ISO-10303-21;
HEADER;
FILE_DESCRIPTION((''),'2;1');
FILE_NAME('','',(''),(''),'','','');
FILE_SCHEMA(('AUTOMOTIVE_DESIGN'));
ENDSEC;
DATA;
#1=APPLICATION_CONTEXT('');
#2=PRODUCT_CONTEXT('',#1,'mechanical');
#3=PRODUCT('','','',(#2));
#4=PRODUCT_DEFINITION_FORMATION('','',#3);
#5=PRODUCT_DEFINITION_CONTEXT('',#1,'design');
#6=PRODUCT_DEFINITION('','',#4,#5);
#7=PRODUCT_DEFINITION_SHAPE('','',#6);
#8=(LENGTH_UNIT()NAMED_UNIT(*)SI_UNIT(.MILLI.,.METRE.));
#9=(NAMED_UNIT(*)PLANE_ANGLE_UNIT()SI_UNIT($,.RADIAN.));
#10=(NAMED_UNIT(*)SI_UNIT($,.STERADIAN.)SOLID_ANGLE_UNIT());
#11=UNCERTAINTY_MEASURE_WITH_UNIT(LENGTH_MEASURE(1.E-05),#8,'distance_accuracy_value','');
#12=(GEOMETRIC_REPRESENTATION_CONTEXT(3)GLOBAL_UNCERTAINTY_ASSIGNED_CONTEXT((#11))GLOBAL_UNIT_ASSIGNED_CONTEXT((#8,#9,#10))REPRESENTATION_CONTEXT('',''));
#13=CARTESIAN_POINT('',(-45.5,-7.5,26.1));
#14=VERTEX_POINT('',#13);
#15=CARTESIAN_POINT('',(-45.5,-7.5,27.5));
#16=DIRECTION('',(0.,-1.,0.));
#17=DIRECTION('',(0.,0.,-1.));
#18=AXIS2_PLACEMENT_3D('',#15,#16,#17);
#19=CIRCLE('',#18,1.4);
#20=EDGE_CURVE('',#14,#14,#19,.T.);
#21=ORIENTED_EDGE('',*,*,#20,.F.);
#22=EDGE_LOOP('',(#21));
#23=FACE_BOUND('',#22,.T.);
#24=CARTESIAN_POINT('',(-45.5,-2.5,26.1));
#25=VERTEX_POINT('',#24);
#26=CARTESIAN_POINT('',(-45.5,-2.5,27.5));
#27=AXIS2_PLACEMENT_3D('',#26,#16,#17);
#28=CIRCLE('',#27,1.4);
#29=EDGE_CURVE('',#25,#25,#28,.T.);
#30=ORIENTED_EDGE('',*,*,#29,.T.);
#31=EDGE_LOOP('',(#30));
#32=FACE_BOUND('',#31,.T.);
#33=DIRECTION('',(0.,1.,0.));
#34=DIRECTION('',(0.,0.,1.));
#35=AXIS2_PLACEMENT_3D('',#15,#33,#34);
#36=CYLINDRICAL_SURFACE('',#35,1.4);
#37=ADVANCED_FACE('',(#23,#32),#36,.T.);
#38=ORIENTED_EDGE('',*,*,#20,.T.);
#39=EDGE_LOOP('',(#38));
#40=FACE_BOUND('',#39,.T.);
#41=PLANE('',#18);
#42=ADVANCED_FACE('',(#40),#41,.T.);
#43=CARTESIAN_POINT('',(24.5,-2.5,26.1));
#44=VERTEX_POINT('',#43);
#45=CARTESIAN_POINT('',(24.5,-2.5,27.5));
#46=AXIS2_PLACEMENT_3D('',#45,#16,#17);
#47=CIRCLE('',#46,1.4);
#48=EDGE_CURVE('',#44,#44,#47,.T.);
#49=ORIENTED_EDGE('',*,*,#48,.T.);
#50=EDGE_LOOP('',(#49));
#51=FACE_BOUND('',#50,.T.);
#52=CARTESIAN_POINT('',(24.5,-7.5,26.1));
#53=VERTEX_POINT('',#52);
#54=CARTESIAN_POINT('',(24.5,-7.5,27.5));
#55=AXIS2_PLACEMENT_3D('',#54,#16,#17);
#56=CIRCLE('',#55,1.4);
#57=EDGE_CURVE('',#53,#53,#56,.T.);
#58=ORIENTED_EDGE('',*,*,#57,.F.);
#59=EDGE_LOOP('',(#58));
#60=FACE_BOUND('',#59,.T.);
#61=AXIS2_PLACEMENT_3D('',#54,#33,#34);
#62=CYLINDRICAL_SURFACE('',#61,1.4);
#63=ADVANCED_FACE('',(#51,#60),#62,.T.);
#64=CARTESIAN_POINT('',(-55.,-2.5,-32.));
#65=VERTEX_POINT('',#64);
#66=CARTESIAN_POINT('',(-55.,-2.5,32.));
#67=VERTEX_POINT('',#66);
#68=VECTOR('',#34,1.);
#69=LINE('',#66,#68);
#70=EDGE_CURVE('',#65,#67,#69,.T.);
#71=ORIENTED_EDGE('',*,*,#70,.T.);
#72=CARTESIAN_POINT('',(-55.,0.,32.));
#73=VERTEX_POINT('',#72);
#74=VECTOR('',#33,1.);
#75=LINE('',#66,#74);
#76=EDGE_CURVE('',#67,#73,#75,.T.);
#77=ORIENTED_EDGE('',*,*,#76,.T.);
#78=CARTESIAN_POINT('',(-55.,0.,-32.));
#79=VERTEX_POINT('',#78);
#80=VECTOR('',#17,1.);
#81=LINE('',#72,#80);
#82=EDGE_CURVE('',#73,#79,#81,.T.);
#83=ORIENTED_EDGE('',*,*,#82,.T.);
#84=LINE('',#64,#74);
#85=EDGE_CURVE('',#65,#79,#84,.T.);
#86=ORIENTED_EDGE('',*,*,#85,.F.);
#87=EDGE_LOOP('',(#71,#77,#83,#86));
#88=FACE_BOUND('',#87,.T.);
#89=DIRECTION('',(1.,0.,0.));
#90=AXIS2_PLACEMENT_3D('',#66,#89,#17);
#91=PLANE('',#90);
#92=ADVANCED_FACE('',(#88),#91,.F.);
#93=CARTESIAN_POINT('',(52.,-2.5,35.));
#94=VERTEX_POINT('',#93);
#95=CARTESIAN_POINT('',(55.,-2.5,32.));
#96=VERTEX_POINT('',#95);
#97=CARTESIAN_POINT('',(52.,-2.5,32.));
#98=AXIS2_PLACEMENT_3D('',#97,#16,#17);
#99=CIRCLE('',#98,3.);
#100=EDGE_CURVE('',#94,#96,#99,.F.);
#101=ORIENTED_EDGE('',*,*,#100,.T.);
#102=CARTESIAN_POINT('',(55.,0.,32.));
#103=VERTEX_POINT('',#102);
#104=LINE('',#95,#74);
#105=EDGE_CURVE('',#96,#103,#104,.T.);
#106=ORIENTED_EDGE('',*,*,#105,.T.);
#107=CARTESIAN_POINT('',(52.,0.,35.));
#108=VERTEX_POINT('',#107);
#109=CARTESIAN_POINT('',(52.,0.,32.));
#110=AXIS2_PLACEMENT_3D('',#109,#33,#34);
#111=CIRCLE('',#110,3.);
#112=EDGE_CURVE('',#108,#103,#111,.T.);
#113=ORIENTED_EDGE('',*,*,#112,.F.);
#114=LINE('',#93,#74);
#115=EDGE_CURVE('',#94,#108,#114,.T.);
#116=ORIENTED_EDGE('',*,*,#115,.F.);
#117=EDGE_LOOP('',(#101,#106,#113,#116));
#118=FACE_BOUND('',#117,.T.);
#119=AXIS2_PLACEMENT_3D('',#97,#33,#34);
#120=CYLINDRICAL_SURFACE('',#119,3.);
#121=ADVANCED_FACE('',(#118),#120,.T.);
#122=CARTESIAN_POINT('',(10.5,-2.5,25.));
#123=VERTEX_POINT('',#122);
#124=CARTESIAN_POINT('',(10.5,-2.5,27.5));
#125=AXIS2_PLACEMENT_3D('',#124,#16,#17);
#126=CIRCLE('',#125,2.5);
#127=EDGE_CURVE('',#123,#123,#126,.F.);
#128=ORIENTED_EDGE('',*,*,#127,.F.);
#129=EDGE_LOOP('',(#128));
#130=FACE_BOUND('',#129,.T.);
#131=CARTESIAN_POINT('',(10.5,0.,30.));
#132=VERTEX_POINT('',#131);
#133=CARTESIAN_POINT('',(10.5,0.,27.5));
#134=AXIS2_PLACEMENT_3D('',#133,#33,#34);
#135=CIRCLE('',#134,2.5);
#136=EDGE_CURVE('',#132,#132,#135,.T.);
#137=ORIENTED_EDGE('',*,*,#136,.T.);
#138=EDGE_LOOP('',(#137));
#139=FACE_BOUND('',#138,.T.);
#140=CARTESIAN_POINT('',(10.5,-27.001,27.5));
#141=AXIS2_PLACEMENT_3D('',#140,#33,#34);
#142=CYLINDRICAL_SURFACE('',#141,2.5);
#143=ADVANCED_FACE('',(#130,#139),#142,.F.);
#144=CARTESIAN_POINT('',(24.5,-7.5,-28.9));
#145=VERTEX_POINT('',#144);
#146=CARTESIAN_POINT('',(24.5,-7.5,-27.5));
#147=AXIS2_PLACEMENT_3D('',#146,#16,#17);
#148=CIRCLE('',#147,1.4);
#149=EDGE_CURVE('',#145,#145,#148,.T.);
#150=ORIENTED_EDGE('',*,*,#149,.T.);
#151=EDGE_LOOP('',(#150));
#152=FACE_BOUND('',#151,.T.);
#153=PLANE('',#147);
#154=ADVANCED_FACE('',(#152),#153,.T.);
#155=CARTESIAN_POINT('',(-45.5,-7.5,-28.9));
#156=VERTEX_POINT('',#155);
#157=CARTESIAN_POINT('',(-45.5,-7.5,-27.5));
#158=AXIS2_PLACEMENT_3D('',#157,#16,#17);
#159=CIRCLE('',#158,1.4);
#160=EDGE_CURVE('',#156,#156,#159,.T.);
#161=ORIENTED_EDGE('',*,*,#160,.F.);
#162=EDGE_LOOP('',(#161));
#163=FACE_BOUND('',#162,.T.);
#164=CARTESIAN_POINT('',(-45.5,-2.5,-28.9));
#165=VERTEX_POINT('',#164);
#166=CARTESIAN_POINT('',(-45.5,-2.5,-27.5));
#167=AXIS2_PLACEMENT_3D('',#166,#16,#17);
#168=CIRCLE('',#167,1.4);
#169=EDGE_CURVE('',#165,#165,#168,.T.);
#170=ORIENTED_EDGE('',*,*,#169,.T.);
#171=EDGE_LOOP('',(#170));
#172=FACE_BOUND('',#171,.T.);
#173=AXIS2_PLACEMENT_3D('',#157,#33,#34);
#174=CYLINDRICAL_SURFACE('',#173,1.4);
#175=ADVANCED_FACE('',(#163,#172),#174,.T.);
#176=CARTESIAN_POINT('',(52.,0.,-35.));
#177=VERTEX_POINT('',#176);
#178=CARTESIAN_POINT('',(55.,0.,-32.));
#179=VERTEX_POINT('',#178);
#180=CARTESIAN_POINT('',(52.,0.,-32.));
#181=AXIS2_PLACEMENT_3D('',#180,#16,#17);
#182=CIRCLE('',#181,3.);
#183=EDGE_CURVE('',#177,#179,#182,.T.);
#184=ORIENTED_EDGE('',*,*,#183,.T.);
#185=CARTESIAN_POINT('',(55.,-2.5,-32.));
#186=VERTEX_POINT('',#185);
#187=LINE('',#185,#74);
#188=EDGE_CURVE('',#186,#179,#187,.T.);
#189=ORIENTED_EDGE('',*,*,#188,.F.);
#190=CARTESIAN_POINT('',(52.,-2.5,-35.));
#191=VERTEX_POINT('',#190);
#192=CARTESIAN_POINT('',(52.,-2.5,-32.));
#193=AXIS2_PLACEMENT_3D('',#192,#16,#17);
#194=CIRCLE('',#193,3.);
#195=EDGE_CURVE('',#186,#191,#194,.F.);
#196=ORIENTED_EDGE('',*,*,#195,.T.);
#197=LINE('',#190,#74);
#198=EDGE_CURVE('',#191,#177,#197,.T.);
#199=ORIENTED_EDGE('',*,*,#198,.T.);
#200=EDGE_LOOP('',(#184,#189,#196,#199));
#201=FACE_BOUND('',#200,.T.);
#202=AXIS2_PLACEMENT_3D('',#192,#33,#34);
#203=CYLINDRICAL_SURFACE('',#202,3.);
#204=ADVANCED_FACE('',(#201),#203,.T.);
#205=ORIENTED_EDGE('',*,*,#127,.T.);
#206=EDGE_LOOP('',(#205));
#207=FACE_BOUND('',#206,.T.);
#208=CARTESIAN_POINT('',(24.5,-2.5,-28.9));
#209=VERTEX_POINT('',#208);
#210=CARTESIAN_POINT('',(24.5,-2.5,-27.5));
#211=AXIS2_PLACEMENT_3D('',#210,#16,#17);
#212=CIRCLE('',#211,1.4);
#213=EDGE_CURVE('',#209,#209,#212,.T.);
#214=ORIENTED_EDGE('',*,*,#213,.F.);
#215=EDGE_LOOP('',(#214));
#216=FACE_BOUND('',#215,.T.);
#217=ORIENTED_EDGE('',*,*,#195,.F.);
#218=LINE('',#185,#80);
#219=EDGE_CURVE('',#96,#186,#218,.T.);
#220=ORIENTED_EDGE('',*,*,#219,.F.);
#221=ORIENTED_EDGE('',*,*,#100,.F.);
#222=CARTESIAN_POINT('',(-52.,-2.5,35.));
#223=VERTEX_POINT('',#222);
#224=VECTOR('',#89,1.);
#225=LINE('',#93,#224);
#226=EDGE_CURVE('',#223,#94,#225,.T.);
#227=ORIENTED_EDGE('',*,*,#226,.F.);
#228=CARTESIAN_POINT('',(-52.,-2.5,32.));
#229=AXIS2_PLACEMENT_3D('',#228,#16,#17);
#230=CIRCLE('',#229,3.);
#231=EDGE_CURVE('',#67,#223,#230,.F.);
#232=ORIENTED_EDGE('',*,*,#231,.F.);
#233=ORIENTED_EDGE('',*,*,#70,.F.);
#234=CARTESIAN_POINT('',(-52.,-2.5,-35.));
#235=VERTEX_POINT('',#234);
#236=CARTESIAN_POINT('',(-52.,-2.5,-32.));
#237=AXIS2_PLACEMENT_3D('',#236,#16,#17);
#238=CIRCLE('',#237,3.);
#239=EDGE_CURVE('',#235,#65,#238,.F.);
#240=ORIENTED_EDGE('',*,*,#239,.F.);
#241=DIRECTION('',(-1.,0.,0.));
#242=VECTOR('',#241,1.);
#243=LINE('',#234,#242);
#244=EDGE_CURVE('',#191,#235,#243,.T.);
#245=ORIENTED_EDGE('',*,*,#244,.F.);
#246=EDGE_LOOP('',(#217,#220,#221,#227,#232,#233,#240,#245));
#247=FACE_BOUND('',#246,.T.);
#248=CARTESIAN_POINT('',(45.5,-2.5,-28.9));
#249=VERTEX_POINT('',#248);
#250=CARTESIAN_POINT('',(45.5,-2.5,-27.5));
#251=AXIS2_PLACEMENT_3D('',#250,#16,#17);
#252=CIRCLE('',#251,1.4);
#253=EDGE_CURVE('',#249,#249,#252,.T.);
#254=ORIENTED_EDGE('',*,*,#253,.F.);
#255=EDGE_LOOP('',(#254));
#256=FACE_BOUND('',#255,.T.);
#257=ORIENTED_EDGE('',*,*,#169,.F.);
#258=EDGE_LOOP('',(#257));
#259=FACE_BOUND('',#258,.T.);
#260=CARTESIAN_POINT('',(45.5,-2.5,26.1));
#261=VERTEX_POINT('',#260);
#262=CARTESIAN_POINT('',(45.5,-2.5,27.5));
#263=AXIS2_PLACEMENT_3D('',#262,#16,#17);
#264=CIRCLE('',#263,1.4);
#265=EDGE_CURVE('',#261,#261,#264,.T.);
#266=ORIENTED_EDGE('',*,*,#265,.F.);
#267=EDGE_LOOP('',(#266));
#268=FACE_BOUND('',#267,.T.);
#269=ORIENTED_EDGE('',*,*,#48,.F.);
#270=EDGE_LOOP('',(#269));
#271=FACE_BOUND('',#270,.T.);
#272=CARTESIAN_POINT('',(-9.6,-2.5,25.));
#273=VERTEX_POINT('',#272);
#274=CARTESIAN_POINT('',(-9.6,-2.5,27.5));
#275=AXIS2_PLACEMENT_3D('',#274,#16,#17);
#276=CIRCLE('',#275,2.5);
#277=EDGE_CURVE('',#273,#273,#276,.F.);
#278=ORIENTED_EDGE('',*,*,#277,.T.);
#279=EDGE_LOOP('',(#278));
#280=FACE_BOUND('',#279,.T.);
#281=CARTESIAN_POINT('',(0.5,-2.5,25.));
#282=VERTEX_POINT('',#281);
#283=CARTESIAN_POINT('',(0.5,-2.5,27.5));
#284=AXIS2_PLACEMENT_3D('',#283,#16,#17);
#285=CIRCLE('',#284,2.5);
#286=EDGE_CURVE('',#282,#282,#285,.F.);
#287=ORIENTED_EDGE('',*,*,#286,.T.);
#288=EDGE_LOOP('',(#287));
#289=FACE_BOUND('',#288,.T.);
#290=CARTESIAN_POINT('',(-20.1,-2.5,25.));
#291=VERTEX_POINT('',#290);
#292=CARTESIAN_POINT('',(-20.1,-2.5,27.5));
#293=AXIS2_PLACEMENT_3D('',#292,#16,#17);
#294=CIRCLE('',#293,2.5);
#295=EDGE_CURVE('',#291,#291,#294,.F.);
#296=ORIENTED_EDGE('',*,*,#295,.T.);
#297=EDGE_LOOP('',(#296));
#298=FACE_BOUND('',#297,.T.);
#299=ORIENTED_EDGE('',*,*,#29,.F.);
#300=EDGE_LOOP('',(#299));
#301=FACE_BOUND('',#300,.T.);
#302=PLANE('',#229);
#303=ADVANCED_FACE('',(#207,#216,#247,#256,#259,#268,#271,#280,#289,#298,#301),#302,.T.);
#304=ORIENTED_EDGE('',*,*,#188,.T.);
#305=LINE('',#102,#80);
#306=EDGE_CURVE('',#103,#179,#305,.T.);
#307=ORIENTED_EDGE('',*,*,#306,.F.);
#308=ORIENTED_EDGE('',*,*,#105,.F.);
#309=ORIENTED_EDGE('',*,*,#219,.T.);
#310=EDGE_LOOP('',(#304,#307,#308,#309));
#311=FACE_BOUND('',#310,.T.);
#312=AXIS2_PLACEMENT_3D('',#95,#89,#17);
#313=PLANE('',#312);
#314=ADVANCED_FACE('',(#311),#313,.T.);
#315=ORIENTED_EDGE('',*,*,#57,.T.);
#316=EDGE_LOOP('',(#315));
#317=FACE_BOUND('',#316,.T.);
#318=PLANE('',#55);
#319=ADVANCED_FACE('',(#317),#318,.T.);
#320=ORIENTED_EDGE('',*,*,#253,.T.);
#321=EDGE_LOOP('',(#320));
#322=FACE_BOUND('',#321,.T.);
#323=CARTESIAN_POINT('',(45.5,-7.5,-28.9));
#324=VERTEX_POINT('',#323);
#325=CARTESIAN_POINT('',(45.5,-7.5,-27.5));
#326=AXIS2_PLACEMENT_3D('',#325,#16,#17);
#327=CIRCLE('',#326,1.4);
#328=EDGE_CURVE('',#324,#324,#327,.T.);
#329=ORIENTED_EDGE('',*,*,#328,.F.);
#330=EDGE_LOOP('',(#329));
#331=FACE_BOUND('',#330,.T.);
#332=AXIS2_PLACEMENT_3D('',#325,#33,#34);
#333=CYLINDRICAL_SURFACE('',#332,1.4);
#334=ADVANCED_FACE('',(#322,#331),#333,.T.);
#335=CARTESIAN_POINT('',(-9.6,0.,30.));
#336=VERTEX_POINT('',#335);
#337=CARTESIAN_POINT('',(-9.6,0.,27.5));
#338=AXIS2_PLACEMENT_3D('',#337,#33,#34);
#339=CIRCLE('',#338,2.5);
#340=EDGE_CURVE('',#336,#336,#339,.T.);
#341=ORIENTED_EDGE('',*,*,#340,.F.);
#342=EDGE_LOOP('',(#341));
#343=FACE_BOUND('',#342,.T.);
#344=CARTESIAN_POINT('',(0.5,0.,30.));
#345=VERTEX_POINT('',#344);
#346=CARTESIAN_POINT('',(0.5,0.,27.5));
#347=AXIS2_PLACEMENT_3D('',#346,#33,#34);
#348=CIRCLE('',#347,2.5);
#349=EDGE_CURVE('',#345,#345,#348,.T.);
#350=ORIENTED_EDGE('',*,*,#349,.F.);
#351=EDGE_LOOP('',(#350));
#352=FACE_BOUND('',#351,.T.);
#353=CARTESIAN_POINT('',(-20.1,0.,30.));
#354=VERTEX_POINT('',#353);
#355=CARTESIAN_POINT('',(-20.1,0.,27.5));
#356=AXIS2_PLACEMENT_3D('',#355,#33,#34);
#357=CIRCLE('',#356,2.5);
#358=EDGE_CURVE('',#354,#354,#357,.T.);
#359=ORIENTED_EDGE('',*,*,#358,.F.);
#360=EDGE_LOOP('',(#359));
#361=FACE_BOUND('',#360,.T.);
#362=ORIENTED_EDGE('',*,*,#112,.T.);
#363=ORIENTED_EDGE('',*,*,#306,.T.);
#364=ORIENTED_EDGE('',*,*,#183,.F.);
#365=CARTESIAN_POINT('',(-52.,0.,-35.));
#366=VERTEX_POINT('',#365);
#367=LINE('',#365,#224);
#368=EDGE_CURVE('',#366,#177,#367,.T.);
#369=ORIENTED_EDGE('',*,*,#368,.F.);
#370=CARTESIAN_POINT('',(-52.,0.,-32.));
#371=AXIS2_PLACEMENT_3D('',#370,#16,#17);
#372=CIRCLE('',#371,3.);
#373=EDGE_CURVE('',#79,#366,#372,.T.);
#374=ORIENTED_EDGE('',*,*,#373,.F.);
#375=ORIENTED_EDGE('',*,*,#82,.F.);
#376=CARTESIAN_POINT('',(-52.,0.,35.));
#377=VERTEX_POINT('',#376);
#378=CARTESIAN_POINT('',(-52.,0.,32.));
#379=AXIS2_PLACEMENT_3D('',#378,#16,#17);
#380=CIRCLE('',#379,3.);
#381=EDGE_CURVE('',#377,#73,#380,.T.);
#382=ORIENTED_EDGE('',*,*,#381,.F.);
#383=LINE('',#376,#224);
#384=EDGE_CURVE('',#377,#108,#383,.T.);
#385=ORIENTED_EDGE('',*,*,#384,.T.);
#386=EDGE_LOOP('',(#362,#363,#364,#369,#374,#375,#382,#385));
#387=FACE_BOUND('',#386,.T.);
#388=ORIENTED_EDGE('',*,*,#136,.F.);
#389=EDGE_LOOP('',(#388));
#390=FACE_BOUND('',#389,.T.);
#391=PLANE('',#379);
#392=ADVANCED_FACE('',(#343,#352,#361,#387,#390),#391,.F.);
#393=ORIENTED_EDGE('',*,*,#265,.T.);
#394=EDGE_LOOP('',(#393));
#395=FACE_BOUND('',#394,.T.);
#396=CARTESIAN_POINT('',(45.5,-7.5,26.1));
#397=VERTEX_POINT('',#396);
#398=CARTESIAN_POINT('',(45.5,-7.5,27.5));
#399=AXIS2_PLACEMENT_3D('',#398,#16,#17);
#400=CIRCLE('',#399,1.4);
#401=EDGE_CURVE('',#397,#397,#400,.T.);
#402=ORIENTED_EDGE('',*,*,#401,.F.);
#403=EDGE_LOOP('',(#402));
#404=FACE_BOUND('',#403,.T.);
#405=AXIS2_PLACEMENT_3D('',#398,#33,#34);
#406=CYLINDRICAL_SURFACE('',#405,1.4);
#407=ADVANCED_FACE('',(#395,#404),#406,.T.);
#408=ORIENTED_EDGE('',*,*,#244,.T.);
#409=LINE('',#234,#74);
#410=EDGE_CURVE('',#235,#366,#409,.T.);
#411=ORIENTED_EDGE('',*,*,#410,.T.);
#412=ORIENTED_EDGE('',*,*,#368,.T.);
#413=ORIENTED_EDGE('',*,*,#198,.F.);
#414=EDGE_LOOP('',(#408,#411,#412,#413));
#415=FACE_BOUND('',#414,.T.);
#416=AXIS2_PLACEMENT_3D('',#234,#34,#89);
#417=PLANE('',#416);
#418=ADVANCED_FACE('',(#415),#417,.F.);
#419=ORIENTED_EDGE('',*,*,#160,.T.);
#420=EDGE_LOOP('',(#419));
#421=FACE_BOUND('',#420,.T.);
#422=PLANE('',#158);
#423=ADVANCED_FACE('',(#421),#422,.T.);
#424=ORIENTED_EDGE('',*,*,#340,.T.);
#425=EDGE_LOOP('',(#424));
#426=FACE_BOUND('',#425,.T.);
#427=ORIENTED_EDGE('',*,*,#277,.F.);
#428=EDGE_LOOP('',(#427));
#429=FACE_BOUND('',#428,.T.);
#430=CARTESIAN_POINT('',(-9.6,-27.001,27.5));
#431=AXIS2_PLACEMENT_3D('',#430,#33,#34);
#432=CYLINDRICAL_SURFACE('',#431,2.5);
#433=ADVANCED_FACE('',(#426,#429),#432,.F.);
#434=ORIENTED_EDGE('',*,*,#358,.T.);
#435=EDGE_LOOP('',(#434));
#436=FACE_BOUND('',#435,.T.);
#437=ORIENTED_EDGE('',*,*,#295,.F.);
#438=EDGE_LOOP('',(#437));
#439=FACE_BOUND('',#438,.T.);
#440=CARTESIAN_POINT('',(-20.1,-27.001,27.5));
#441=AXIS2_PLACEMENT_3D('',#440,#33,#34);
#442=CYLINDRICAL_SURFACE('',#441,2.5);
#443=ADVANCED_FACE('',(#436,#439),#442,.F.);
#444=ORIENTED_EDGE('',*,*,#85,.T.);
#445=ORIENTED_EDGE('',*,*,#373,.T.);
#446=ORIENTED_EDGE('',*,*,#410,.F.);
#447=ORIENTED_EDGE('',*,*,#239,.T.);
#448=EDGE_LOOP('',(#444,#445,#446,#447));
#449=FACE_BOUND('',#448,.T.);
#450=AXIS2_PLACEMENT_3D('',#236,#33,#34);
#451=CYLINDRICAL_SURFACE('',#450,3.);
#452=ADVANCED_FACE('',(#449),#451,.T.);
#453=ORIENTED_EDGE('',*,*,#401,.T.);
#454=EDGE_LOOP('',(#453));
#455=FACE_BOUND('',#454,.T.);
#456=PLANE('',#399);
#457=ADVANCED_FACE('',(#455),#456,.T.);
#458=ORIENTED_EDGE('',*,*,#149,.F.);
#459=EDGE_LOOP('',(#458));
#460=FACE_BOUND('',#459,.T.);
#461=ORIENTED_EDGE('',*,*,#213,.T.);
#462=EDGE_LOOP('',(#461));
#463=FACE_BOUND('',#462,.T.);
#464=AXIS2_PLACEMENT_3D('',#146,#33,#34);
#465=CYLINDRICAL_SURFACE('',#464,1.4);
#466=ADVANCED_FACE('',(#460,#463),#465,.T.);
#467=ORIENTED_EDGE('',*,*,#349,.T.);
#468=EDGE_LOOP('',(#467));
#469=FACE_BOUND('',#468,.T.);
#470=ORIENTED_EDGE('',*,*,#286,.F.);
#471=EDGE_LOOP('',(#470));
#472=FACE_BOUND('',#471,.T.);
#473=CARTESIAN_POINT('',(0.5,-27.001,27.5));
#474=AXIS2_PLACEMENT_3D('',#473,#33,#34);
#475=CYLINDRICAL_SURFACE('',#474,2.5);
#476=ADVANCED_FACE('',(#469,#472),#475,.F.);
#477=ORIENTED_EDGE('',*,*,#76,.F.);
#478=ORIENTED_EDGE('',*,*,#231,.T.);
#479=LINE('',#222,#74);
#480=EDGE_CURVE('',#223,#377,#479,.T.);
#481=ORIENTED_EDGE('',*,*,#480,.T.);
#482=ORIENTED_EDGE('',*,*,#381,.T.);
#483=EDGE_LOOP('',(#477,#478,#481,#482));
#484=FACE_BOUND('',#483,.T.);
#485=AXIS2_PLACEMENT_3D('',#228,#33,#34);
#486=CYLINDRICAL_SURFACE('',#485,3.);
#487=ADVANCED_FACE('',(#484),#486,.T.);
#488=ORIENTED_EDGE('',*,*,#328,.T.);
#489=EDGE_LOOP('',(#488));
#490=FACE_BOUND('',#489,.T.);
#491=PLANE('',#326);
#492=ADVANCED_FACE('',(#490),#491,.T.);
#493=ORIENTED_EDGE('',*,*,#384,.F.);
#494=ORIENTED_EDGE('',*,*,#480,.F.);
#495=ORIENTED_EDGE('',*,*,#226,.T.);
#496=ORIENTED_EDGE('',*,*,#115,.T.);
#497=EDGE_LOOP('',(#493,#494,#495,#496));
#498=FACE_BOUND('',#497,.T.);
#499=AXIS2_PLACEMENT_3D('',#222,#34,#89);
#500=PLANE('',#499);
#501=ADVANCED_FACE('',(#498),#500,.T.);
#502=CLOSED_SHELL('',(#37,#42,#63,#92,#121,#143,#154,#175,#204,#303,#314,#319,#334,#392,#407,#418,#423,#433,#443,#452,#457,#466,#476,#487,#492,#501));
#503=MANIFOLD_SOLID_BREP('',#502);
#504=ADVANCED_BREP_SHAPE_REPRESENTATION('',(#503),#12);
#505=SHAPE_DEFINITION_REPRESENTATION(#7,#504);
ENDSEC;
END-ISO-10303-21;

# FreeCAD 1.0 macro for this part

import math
import FreeCAD as App
import Part
import Sketcher
from FreeCAD import Vector
Q = App.Units.Quantity

doc = App.newDocument("Part")
params = doc.addObject("Spreadsheet::Sheet", "Params")
for row, (alias, value) in enumerate([
    ("sketch1_radius", "3 mm"),
    ("sketch1_width", "104 mm"),
    ("sketch1_height", "64 mm"),
    ("pad1_length", "2.5 mm"),
    ("sketch2_radius", "3 mm"),
    ("sketch2_radius2", "1.5 mm"),
    ("sketch2_width", "104 mm"),
    ("sketch2_height", "64 mm"),
    ("pad2_length", "24.5 mm"),
    ("sketch3_diameter", "5 mm"),
    ("sketch4_diameter", "5 mm"),
    ("sketch5_diameter", "5 mm"),
    ("sketch6_diameter", "5 mm"),
    ("sketch7_radius", "5 mm"),
    ("sketch7_diameter", "2.8 mm"),
    ("sketch7_radius2", "1.5 mm"),
    ("sketch7_width", "9 mm"),
    ("sketch7_width2", "11 mm"),
    ("pad3_length", "20 mm"),
    ("sketch8_diameter", "12.3 mm"),
    ("sketch9_radius", "5 mm"),
    ("sketch9_diameter", "2.8 mm"),
    ("sketch9_radius2", "1.5 mm"),
    ("sketch9_width", "9 mm"),
    ("sketch9_height", "6 mm"),
    ("pad4_length", "2 mm"),
    ("sketch10_radius", "3 mm"),
    ("sketch10_width", "104 mm"),
    ("sketch10_height", "64 mm"),
    ("pocket6_length", "24.5 mm"),
    ("sketch11_diameter", "2.8 mm"),
    ("pad5_length", "5 mm"),
], start=1):
    params.set(f"A{row}", alias)
    params.set(f"B{row}", "=" + value)
    params.setAlias(f"B{row}", alias)

body = doc.addObject("PartDesign::Body", "Body")

# Sketch on XZ plane
sketch1 = body.newObject("Sketcher::SketchObject", "Sketch")
sketch1.AttachmentSupport = (doc.getObject("XZ_Plane"), [""])
sketch1.MapMode = "FlatFace"
sketch1.addGeometry([
    Part.LineSegment(Vector(-52, 35, 0), Vector(52, 35, 0)),  # 0
    Part.ArcOfCircle(Part.Circle(Vector(52, 32, 0), Vector(0, 0, 1), 3), math.radians(0), math.radians(90)),  # 1
    Part.LineSegment(Vector(55, 32, 0), Vector(55, -32, 0)),  # 2
    Part.ArcOfCircle(Part.Circle(Vector(52, -32, 0), Vector(0, 0, 1), 3), math.radians(-90), math.radians(0)),  # 3
    Part.LineSegment(Vector(52, -35, 0), Vector(-52, -35, 0)),  # 4
    Part.ArcOfCircle(Part.Circle(Vector(-52, -32, 0), Vector(0, 0, 1), 3), math.radians(180), math.radians(270)),  # 5
    Part.LineSegment(Vector(-55, -32, 0), Vector(-55, 32, 0)),  # 6
    Part.ArcOfCircle(Part.Circle(Vector(-52, 32, 0), Vector(0, 0, 1), 3), math.radians(90), math.radians(180)),  # 7
], False)
sketch1.addConstraint([
    Sketcher.Constraint("Tangent", 0, 2, 1, 2),
    Sketcher.Constraint("Tangent", 1, 1, 2, 1),
    Sketcher.Constraint("Tangent", 2, 2, 3, 2),
    Sketcher.Constraint("Tangent", 3, 1, 4, 1),
    Sketcher.Constraint("Tangent", 4, 2, 5, 2),
    Sketcher.Constraint("Tangent", 5, 1, 6, 1),
    Sketcher.Constraint("Tangent", 6, 2, 7, 2),
    Sketcher.Constraint("Tangent", 7, 1, 0, 1),
    Sketcher.Constraint("Horizontal", 0),
    Sketcher.Constraint("Vertical", 2),
    Sketcher.Constraint("Horizontal", 4),
    Sketcher.Constraint("Vertical", 6),
    Sketcher.Constraint("Equal", 1, 3),
    Sketcher.Constraint("Equal", 3, 5),
    Sketcher.Constraint("Equal", 5, 7),
    Sketcher.Constraint("Symmetric", 1, 3, 5, 3, -1, 1),
    Sketcher.Constraint("Radius", 1, Q("3 mm")),
    Sketcher.Constraint("DistanceX", 0, 1, 0, 2, Q("104 mm")),
    Sketcher.Constraint("DistanceY", 2, 2, 2, 1, Q("64 mm")),
])
sketch1.setExpression("Constraints[16]", "Params.sketch1_radius")
sketch1.setExpression("Constraints[17]", "Params.sketch1_width")
sketch1.setExpression("Constraints[18]", "Params.sketch1_height")
pad1 = body.newObject("PartDesign::Pad", "Pad")
pad1.Profile = sketch1
pad1.setExpression("Length", "Params.pad1_length")

# Sketch on XZ plane
sketch2 = body.newObject("Sketcher::SketchObject", "Sketch001")
sketch2.AttachmentSupport = (doc.getObject("XZ_Plane"), [""])
sketch2.MapMode = "FlatFace"
sketch2.AttachmentOffset = App.Placement(Vector(0, 0, 2.5), App.Rotation())
sketch2.addGeometry([
    Part.LineSegment(Vector(-55, 32, 0), Vector(-55, -32, 0)),  # 0
    Part.ArcOfCircle(Part.Circle(Vector(-52, -32, 0), Vector(0, 0, 1), 3), math.radians(180), math.radians(270)),  # 1
    Part.LineSegment(Vector(-52, -35, 0), Vector(52, -35, 0)),  # 2
    Part.ArcOfCircle(Part.Circle(Vector(52, -32, 0), Vector(0, 0, 1), 3), math.radians(-90), math.radians(0)),  # 3
    Part.LineSegment(Vector(55, -32, 0), Vector(55, 32, 0)),  # 4
    Part.ArcOfCircle(Part.Circle(Vector(52, 32, 0), Vector(0, 0, 1), 3), math.radians(0), math.radians(90)),  # 5
    Part.LineSegment(Vector(52, 35, 0), Vector(-52, 35, 0)),  # 6
    Part.ArcOfCircle(Part.Circle(Vector(-52, 32, 0), Vector(0, 0, 1), 3), math.radians(90), math.radians(180)),  # 7
    Part.LineSegment(Vector(-53.5, -32, 0), Vector(-53.5, 32, 0)),  # 8
    Part.ArcOfCircle(Part.Circle(Vector(-52, 32, 0), Vector(0, 0, 1), 1.5), math.radians(90), math.radians(180)),  # 9
    Part.LineSegment(Vector(-52, 33.5, 0), Vector(52, 33.5, 0)),  # 10
    Part.ArcOfCircle(Part.Circle(Vector(52, 32, 0), Vector(0, 0, 1), 1.5), math.radians(0), math.radians(90)),  # 11
    Part.LineSegment(Vector(53.5, 32, 0), Vector(53.5, -32, 0)),  # 12
    Part.ArcOfCircle(Part.Circle(Vector(52, -32, 0), Vector(0, 0, 1), 1.5), math.radians(-90), math.radians(0)),  # 13
    Part.LineSegment(Vector(52, -33.5, 0), Vector(-52, -33.5, 0)),  # 14
    Part.ArcOfCircle(Part.Circle(Vector(-52, -32, 0), Vector(0, 0, 1), 1.5), math.radians(180), math.radians(270)),  # 15
], False)
sketch2.addConstraint([
    Sketcher.Constraint("Tangent", 0, 2, 1, 1),
    Sketcher.Constraint("Tangent", 1, 2, 2, 1),
    Sketcher.Constraint("Tangent", 2, 2, 3, 1),
    Sketcher.Constraint("Tangent", 3, 2, 4, 1),
    Sketcher.Constraint("Tangent", 4, 2, 5, 1),
    Sketcher.Constraint("Tangent", 5, 2, 6, 1),
    Sketcher.Constraint("Tangent", 6, 2, 7, 1),
    Sketcher.Constraint("Tangent", 7, 2, 0, 1),
    Sketcher.Constraint("Tangent", 8, 2, 9, 2),
    Sketcher.Constraint("Tangent", 9, 1, 10, 1),
    Sketcher.Constraint("Tangent", 10, 2, 11, 2),
    Sketcher.Constraint("Tangent", 11, 1, 12, 1),
    Sketcher.Constraint("Tangent", 12, 2, 13, 2),
    Sketcher.Constraint("Tangent", 13, 1, 14, 1),
    Sketcher.Constraint("Tangent", 14, 2, 15, 2),
    Sketcher.Constraint("Tangent", 15, 1, 8, 1),
    Sketcher.Constraint("Vertical", 0),
    Sketcher.Constraint("Horizontal", 2),
    Sketcher.Constraint("Vertical", 4),
    Sketcher.Constraint("Horizontal", 6),
    Sketcher.Constraint("Vertical", 8),
    Sketcher.Constraint("Horizontal", 10),
    Sketcher.Constraint("Vertical", 12),
    Sketcher.Constraint("Horizontal", 14),
    Sketcher.Constraint("Coincident", 9, 3, 7, 3),
    Sketcher.Constraint("Coincident", 11, 3, 5, 3),
    Sketcher.Constraint("Coincident", 13, 3, 3, 3),
    Sketcher.Constraint("Equal", 1, 3),
    Sketcher.Constraint("Equal", 3, 5),
    Sketcher.Constraint("Equal", 5, 7),
    Sketcher.Constraint("Equal", 13, 15),
    Sketcher.Constraint("Symmetric", 1, 3, 5, 3, -1, 1),
    Sketcher.Constraint("Radius", 1, Q("3 mm")),
    Sketcher.Constraint("Radius", 9, Q("1.5 mm")),
    Sketcher.Constraint("DistanceX", 2, 1, 2, 2, Q("104 mm")),
    Sketcher.Constraint("DistanceY", 0, 2, 0, 1, Q("64 mm")),
])
sketch2.setExpression("Constraints[32]", "Params.sketch2_radius")
sketch2.setExpression("Constraints[33]", "Params.sketch2_radius2")
sketch2.setExpression("Constraints[34]", "Params.sketch2_width")
sketch2.setExpression("Constraints[35]", "Params.sketch2_height")
pad2 = body.newObject("PartDesign::Pad", "Pad001")
pad2.Profile = sketch2
pad2.setExpression("Length", "Params.pad2_length")

# Sketch on XZ plane
sketch3 = body.newObject("Sketcher::SketchObject", "Sketch002")
sketch3.AttachmentSupport = (doc.getObject("XZ_Plane"), [""])
sketch3.MapMode = "FlatFace"
sketch3.addGeometry(Part.Circle(Vector(-20.1, 27.5, 0), Vector(0, 0, 1), 2.5), False)
sketch3.addConstraint([
    Sketcher.Constraint("Diameter", 0, Q("5 mm")),
    Sketcher.Constraint("DistanceX", 0, 3, -1, 1, Q("20.1 mm")),
    Sketcher.Constraint("DistanceY", -1, 1, 0, 3, Q("27.5 mm")),
])
sketch3.setExpression("Constraints[0]", "Params.sketch3_diameter")
pocket1 = body.newObject("PartDesign::Pocket", "Pocket")
pocket1.Profile = sketch3
pocket1.Type = "UpToFirst"
pocket1.Reversed = True

# Sketch on XZ plane
sketch4 = body.newObject("Sketcher::SketchObject", "Sketch003")
sketch4.AttachmentSupport = (doc.getObject("XZ_Plane"), [""])
sketch4.MapMode = "FlatFace"
sketch4.addGeometry(Part.Circle(Vector(-9.6, 27.5, 0), Vector(0, 0, 1), 2.5), False)
sketch4.addConstraint([
    Sketcher.Constraint("Diameter", 0, Q("5 mm")),
    Sketcher.Constraint("DistanceX", 0, 3, -1, 1, Q("9.6 mm")),
    Sketcher.Constraint("DistanceY", -1, 1, 0, 3, Q("27.5 mm")),
])
sketch4.setExpression("Constraints[0]", "Params.sketch4_diameter")
pocket2 = body.newObject("PartDesign::Pocket", "Pocket001")
pocket2.Profile = sketch4
pocket2.Type = "UpToFirst"
pocket2.Reversed = True

# Sketch on XZ plane
sketch5 = body.newObject("Sketcher::SketchObject", "Sketch004")
sketch5.AttachmentSupport = (doc.getObject("XZ_Plane"), [""])
sketch5.MapMode = "FlatFace"
sketch5.addGeometry(Part.Circle(Vector(0.5, 27.5, 0), Vector(0, 0, 1), 2.5), False)
sketch5.addConstraint([
    Sketcher.Constraint("Diameter", 0, Q("5 mm")),
    Sketcher.Constraint("DistanceX", -1, 1, 0, 3, Q("0.5 mm")),
    Sketcher.Constraint("DistanceY", -1, 1, 0, 3, Q("27.5 mm")),
])
sketch5.setExpression("Constraints[0]", "Params.sketch5_diameter")
pocket3 = body.newObject("PartDesign::Pocket", "Pocket002")
pocket3.Profile = sketch5
pocket3.Type = "UpToFirst"
pocket3.Reversed = True

# Sketch on XZ plane
sketch6 = body.newObject("Sketcher::SketchObject", "Sketch005")
sketch6.AttachmentSupport = (doc.getObject("XZ_Plane"), [""])
sketch6.MapMode = "FlatFace"
sketch6.addGeometry(Part.Circle(Vector(10.5, 27.5, 0), Vector(0, 0, 1), 2.5), False)
sketch6.addConstraint([
    Sketcher.Constraint("Diameter", 0, Q("5 mm")),
    Sketcher.Constraint("DistanceX", -1, 1, 0, 3, Q("10.5 mm")),
    Sketcher.Constraint("DistanceY", -1, 1, 0, 3, Q("27.5 mm")),
])
sketch6.setExpression("Constraints[0]", "Params.sketch6_diameter")
pocket4 = body.newObject("PartDesign::Pocket", "Pocket003")
pocket4.Profile = sketch6
pocket4.Type = "UpToFirst"
pocket4.Reversed = True

# Sketch on XZ plane
sketch7 = body.newObject("Sketcher::SketchObject", "Sketch006")
sketch7.AttachmentSupport = (doc.getObject("XZ_Plane"), [""])
sketch7.MapMode = "FlatFace"
sketch7.AttachmentOffset = App.Placement(Vector(0, 0, 2.5), App.Rotation())
sketch7.addGeometry([
    Part.LineSegment(Vector(-39.5, 27.5, 0), Vector(-39.5, 33.5, 0)),  # 0
    Part.LineSegment(Vector(-39.5, 33.5, 0), Vector(-52, 33.5, 0)),  # 1
    Part.ArcOfCircle(Part.Circle(Vector(-52, 32, 0), Vector(0, 0, 1), 1.5), math.radians(90), math.radians(180)),  # 2
    Part.LineSegment(Vector(-53.5, 32, 0), Vector(-53.5, 22.5, 0)),  # 3
    Part.LineSegment(Vector(-53.5, 22.5, 0), Vector(-44.5, 22.5, 0)),  # 4
    Part.ArcOfCircle(Part.Circle(Vector(-44.5, 27.5, 0), Vector(0, 0, 1), 5), math.radians(-90), math.radians(0)),  # 5
    Part.Circle(Vector(-45.5, 27.5, 0), Vector(0, 0, 1), 1.4),  # 6
    Part.LineSegment(Vector(29.5, 33.5, 0), Vector(18.5, 33.5, 0)),  # 7
    Part.LineSegment(Vector(18.5, 33.5, 0), Vector(18.5, 27.5, 0)),  # 8
    Part.ArcOfCircle(Part.Circle(Vector(23.5, 27.5, 0), Vector(0, 0, 1), 5), math.radians(180), math.radians(270)),  # 9
    Part.LineSegment(Vector(23.5, 22.5, 0), Vector(24.5, 22.5, 0)),  # 10
    Part.ArcOfCircle(Part.Circle(Vector(24.5, 27.5, 0), Vector(0, 0, 1), 5), math.radians(-90), math.radians(0)),  # 11
    Part.LineSegment(Vector(29.5, 27.5, 0), Vector(29.5, 33.5, 0)),  # 12
    Part.Circle(Vector(24.5, 27.5, 0), Vector(0, 0, 1), 1.4),  # 13
    Part.LineSegment(Vector(18.5, -27.5, 0), Vector(18.5, -33.5, 0)),  # 14
    Part.LineSegment(Vector(18.5, -33.5, 0), Vector(29.5, -33.5, 0)),  # 15
    Part.LineSegment(Vector(29.5, -33.5, 0), Vector(29.5, -27.5, 0)),  # 16
    Part.ArcOfCircle(Part.Circle(Vector(24.5, -27.5, 0), Vector(0, 0, 1), 5), math.radians(0), math.radians(90)),  # 17
    Part.LineSegment(Vector(24.5, -22.5, 0), Vector(23.5, -22.5, 0)),  # 18
    Part.ArcOfCircle(Part.Circle(Vector(23.5, -27.5, 0), Vector(0, 0, 1), 5), math.radians(90), math.radians(180)),  # 19
    Part.Circle(Vector(24.5, -27.5, 0), Vector(0, 0, 1), 1.4),  # 20
    Part.LineSegment(Vector(-44.5, -22.5, 0), Vector(-53.5, -22.5, 0)),  # 21
    Part.LineSegment(Vector(-53.5, -22.5, 0), Vector(-53.5, -32, 0)),  # 22
    Part.ArcOfCircle(Part.Circle(Vector(-52, -32, 0), Vector(0, 0, 1), 1.5), math.radians(180), math.radians(270)),  # 23
    Part.LineSegment(Vector(-52, -33.5, 0), Vector(-39.5, -33.5, 0)),  # 24
    Part.LineSegment(Vector(-39.5, -33.5, 0), Vector(-39.5, -27.5, 0)),  # 25
    Part.ArcOfCircle(Part.Circle(Vector(-44.5, -27.5, 0), Vector(0, 0, 1), 5), math.radians(0), math.radians(90)),  # 26
    Part.Circle(Vector(-45.5, -27.5, 0), Vector(0, 0, 1), 1.4),  # 27
    Part.LineSegment(Vector(52, 33.5, 0), Vector(39.5, 33.5, 0)),  # 28
    Part.LineSegment(Vector(39.5, 33.5, 0), Vector(39.5, 27.5, 0)),  # 29
    Part.ArcOfCircle(Part.Circle(Vector(44.5, 27.5, 0), Vector(0, 0, 1), 5), math.radians(180), math.radians(270)),  # 30
    Part.LineSegment(Vector(44.5, 22.5, 0), Vector(53.5, 22.5, 0)),  # 31
    Part.LineSegment(Vector(53.5, 22.5, 0), Vector(53.5, 32, 0)),  # 32
    Part.ArcOfCircle(Part.Circle(Vector(52, 32, 0), Vector(0, 0, 1), 1.5), math.radians(0), math.radians(90)),  # 33
    Part.Circle(Vector(45.5, 27.5, 0), Vector(0, 0, 1), 1.4),  # 34
    Part.LineSegment(Vector(53.5, -32, 0), Vector(53.5, -22.5, 0)),  # 35
    Part.LineSegment(Vector(53.5, -22.5, 0), Vector(44.5, -22.5, 0)),  # 36
    Part.ArcOfCircle(Part.Circle(Vector(44.5, -27.5, 0), Vector(0, 0, 1), 5), math.radians(90), math.radians(180)),  # 37
    Part.LineSegment(Vector(39.5, -27.5, 0), Vector(39.5, -33.5, 0)),  # 38
    Part.LineSegment(Vector(39.5, -33.5, 0), Vector(52, -33.5, 0)),  # 39
    Part.ArcOfCircle(Part.Circle(Vector(52, -32, 0), Vector(0, 0, 1), 1.5), math.radians(-90), math.radians(0)),  # 40
    Part.Circle(Vector(45.5, -27.5, 0), Vector(0, 0, 1), 1.4),  # 41
], False)
sketch7.addConstraint([
    Sketcher.Constraint("Coincident", 0, 2, 1, 1),
    Sketcher.Constraint("Tangent", 1, 2, 2, 1),
    Sketcher.Constraint("Tangent", 2, 2, 3, 1),
    Sketcher.Constraint("Coincident", 3, 2, 4, 1),
    Sketcher.Constraint("Tangent", 4, 2, 5, 1),
    Sketcher.Constraint("Tangent", 5, 2, 0, 1),
    Sketcher.Constraint("Coincident", 7, 2, 8, 1),
    Sketcher.Constraint("Tangent", 8, 2, 9, 1),
    Sketcher.Constraint("Tangent", 9, 2, 10, 1),
    Sketcher.Constraint("Tangent", 10, 2, 11, 1),
    Sketcher.Constraint("Tangent", 11, 2, 12, 1),
    Sketcher.Constraint("Coincident", 12, 2, 7, 1),
    Sketcher.Constraint("Coincident", 14, 2, 15, 1),
    Sketcher.Constraint("Coincident", 15, 2, 16, 1),
    Sketcher.Constraint("Tangent", 16, 2, 17, 1),
    Sketcher.Constraint("Tangent", 17, 2, 18, 1),
    Sketcher.Constraint("Tangent", 18, 2, 19, 1),
    Sketcher.Constraint("Tangent", 19, 2, 14, 1),
    Sketcher.Constraint("Coincident", 21, 2, 22, 1),
    Sketcher.Constraint("Tangent", 22, 2, 23, 1),
    Sketcher.Constraint("Tangent", 23, 2, 24, 1),
    Sketcher.Constraint("Coincident", 24, 2, 25, 1),
    Sketcher.Constraint("Tangent", 25, 2, 26, 1),
    Sketcher.Constraint("Tangent", 26, 2, 21, 1),
    Sketcher.Constraint("Coincident", 28, 2, 29, 1),
    Sketcher.Constraint("Tangent", 29, 2, 30, 1),
    Sketcher.Constraint("Tangent", 30, 2, 31, 1),
    Sketcher.Constraint("Coincident", 31, 2, 32, 1),
    Sketcher.Constraint("Tangent", 32, 2, 33, 1),
    Sketcher.Constraint("Tangent", 33, 2, 28, 1),
    Sketcher.Constraint("Coincident", 35, 2, 36, 1),
    Sketcher.Constraint("Tangent", 36, 2, 37, 1),
    Sketcher.Constraint("Tangent", 37, 2, 38, 1),
    Sketcher.Constraint("Coincident", 38, 2, 39, 1),
    Sketcher.Constraint("Tangent", 39, 2, 40, 1),
    Sketcher.Constraint("Tangent", 40, 2, 35, 1),
    Sketcher.Constraint("Vertical", 0),
    Sketcher.Constraint("Horizontal", 1),
    Sketcher.Constraint("Vertical", 3),
    Sketcher.Constraint("Horizontal", 4),
    Sketcher.Constraint("Horizontal", 7),
    Sketcher.Constraint("Vertical", 8),
    Sketcher.Constraint("Horizontal", 10),
    Sketcher.Constraint("Vertical", 12),
    Sketcher.Constraint("Vertical", 14),
    Sketcher.Constraint("Horizontal", 15),
    Sketcher.Constraint("Vertical", 16),
    Sketcher.Constraint("Horizontal", 18),
    Sketcher.Constraint("Horizontal", 21),
    Sketcher.Constraint("Vertical", 22),
    Sketcher.Constraint("Horizontal", 24),
    Sketcher.Constraint("Vertical", 25),
    Sketcher.Constraint("Horizontal", 28),
    Sketcher.Constraint("Vertical", 29),
    Sketcher.Constraint("Horizontal", 31),
    Sketcher.Constraint("Vertical", 32),
    Sketcher.Constraint("Vertical", 35),
    Sketcher.Constraint("Horizontal", 36),
    Sketcher.Constraint("Vertical", 38),
    Sketcher.Constraint("Horizontal", 39),
    Sketcher.Constraint("Coincident", 13, 3, 11, 3),
    Sketcher.Constraint("Coincident", 20, 3, 17, 3),
    Sketcher.Constraint("Equal", 5, 9),
    Sketcher.Constraint("Equal", 9, 11),
    Sketcher.Constraint("Equal", 6, 13),
    Sketcher.Constraint("Equal", 11, 17),
    Sketcher.Constraint("Equal", 17, 19),
    Sketcher.Constraint("Equal", 13, 20),
    Sketcher.Constraint("Equal", 2, 23),
    Sketcher.Constraint("Equal", 19, 26),
    Sketcher.Constraint("Equal", 20, 27),
    Sketcher.Constraint("Equal", 26, 30),
    Sketcher.Constraint("Equal", 23, 33),
    Sketcher.Constraint("Equal", 27, 34),
    Sketcher.Constraint("Equal", 30, 37),
    Sketcher.Constraint("Equal", 33, 40),
    Sketcher.Constraint("Equal", 34, 41),
    Sketcher.Constraint("Symmetric", 26, 3, 30, 3, -1, 1),
    Sketcher.Constraint("Symmetric", 23, 3, 33, 3, -1, 1),
    Sketcher.Constraint("Symmetric", 27, 3, 34, 3, -1, 1),
    Sketcher.Constraint("Symmetric", 5, 3, 37, 3, -1, 1),
    Sketcher.Constraint("Symmetric", 2, 3, 40, 3, -1, 1),
    Sketcher.Constraint("Symmetric", 6, 3, 41, 3, -1, 1),
    Sketcher.Constraint("Symmetric", 5, 3, 30, 3, -2),
    Sketcher.Constraint("Symmetric", 2, 3, 33, 3, -2),
    Sketcher.Constraint("Symmetric", 6, 3, 34, 3, -2),
    Sketcher.Constraint("Symmetric", 11, 3, 17, 3, -1),
    Sketcher.Constraint("Symmetric", 7, 2, 14, 2, -1),
    Sketcher.Constraint("Horizontal", 5, 3, 6, 3),
    Sketcher.Constraint("Horizontal", 6, 3, 9, 3),
    Sketcher.Constraint("Horizontal", 1, 2, 7, 2),
    Sketcher.Constraint("Radius", 5, Q("5 mm")),
    Sketcher.Constraint("Diameter", 6, Q("2.8 mm")),
    Sketcher.Constraint("Radius", 2, Q("1.5 mm")),
    Sketcher.Constraint("DistanceX", 4, 1, 4, 2, Q("9 mm")),
    Sketcher.Constraint("DistanceX", 7, 2, 7, 1, Q("11 mm")),
    Sketcher.Constraint("DistanceY", 0, 1, 0, 2, Q("6 mm")),
    Sketcher.Constraint("DistanceX", 2, 3, -1, 1, Q("52 mm")),
    Sketcher.Constraint("DistanceY", -1, 1, 2, 3, Q("32 mm")),
    Sketcher.Constraint("DistanceX", 6, 3, 5, 3, Q("1 mm")),
    Sketcher.Constraint("DistanceX", 5, 3, 9, 3, Q("68 mm")),
])
sketch7.setExpression("Constraints[91]", "Params.sketch7_radius")
sketch7.setExpression("Constraints[92]", "Params.sketch7_diameter")
sketch7.setExpression("Constraints[93]", "Params.sketch7_radius2")
sketch7.setExpression("Constraints[94]", "Params.sketch7_width")
sketch7.setExpression("Constraints[95]", "Params.sketch7_width2")
pad3 = body.newObject("PartDesign::Pad", "Pad002")
pad3.Profile = sketch7
pad3.setExpression("Length", "Params.pad3_length")

# Sketch on YZ plane
sketch8 = body.newObject("Sketcher::SketchObject", "Sketch007")
sketch8.AttachmentSupport = (doc.getObject("YZ_Plane"), [""])
sketch8.MapMode = "FlatFace"
sketch8.AttachmentOffset = App.Placement(Vector(0, 0, 55), App.Rotation())
sketch8.addGeometry(Part.Circle(Vector(-17, 12, 0), Vector(0, 0, 1), 6), False)
sketch8.addConstraint([
    Sketcher.Constraint("Diameter", 0, Q("12.3 mm")),
    Sketcher.Constraint("DistanceX", 0, 3, -1, 1, Q("17 mm")),
    Sketcher.Constraint("DistanceY", -1, 1, 0, 3, Q("12 mm")),
])
sketch8.setExpression("Constraints[0]", "Params.sketch8_diameter")
pocket5 = body.newObject("PartDesign::Pocket", "Pocket004")
pocket5.Profile = sketch8
pocket5.Type = "UpToFirst"

# Sketch on XZ plane
sketch9 = body.newObject("Sketcher::SketchObject", "Sketch008")
sketch9.AttachmentSupport = (doc.getObject("XZ_Plane"), [""])
sketch9.MapMode = "FlatFace"
sketch9.AttachmentOffset = App.Placement(Vector(0, 0, 22.5), App.Rotation())
sketch9.addGeometry([
    Part.LineSegment(Vector(44.5, 22.5, 0), Vector(53.5, 22.5, 0)),  # 0
    Part.LineSegment(Vector(53.5, 22.5, 0), Vector(53.5, 32, 0)),  # 1
    Part.ArcOfCircle(Part.Circle(Vector(52, 32, 0), Vector(0, 0, 1), 1.5), math.radians(0), math.radians(90)),  # 2
    Part.LineSegment(Vector(52, 33.5, 0), Vector(39.5, 33.5, 0)),  # 3
    Part.LineSegment(Vector(39.5, 33.5, 0), Vector(39.5, 27.5, 0)),  # 4
    Part.ArcOfCircle(Part.Circle(Vector(44.5, 27.5, 0), Vector(0, 0, 1), 5), math.radians(180), math.radians(270)),  # 5
    Part.Circle(Vector(45.5, 27.5, 0), Vector(0, 0, 1), 1.4),  # 6
    Part.LineSegment(Vector(39.5, -27.5, 0), Vector(39.5, -33.5, 0)),  # 7
    Part.LineSegment(Vector(39.5, -33.5, 0), Vector(52, -33.5, 0)),  # 8
    Part.ArcOfCircle(Part.Circle(Vector(52, -32, 0), Vector(0, 0, 1), 1.5), math.radians(-90), math.radians(0)),  # 9
    Part.LineSegment(Vector(53.5, -32, 0), Vector(53.5, -22.5, 0)),  # 10
    Part.LineSegment(Vector(53.5, -22.5, 0), Vector(44.5, -22.5, 0)),  # 11
    Part.ArcOfCircle(Part.Circle(Vector(44.5, -27.5, 0), Vector(0, 0, 1), 5), math.radians(90), math.radians(180)),  # 12
    Part.Circle(Vector(45.5, -27.5, 0), Vector(0, 0, 1), 1.4),  # 13
], False)
sketch9.addConstraint([
    Sketcher.Constraint("Coincident", 0, 2, 1, 1),
    Sketcher.Constraint("Tangent", 1, 2, 2, 1),
    Sketcher.Constraint("Tangent", 2, 2, 3, 1),
    Sketcher.Constraint("Coincident", 3, 2, 4, 1),
    Sketcher.Constraint("Tangent", 4, 2, 5, 1),
    Sketcher.Constraint("Tangent", 5, 2, 0, 1),
    Sketcher.Constraint("Coincident", 7, 2, 8, 1),
    Sketcher.Constraint("Tangent", 8, 2, 9, 1),
    Sketcher.Constraint("Tangent", 9, 2, 10, 1),
    Sketcher.Constraint("Coincident", 10, 2, 11, 1),
    Sketcher.Constraint("Tangent", 11, 2, 12, 1),
    Sketcher.Constraint("Tangent", 12, 2, 7, 1),
    Sketcher.Constraint("Horizontal", 0),
    Sketcher.Constraint("Vertical", 1),
    Sketcher.Constraint("Horizontal", 3),
    Sketcher.Constraint("Vertical", 4),
    Sketcher.Constraint("Vertical", 7),
    Sketcher.Constraint("Horizontal", 8),
    Sketcher.Constraint("Vertical", 10),
    Sketcher.Constraint("Horizontal", 11),
    Sketcher.Constraint("Equal", 2, 9),
    Sketcher.Constraint("Equal", 5, 12),
    Sketcher.Constraint("Equal", 6, 13),
    Sketcher.Constraint("Symmetric", 2, 3, 9, 3, -1),
    Sketcher.Constraint("Symmetric", 5, 3, 12, 3, -1),
    Sketcher.Constraint("Symmetric", 6, 3, 13, 3, -1),
    Sketcher.Constraint("Horizontal", 5, 3, 6, 3),
    Sketcher.Constraint("Radius", 5, Q("5 mm")),
    Sketcher.Constraint("Diameter", 6, Q("2.8 mm")),
    Sketcher.Constraint("Radius", 2, Q("1.5 mm")),
    Sketcher.Constraint("DistanceX", 0, 1, 0, 2, Q("9 mm")),
    Sketcher.Constraint("DistanceY", 4, 2, 4, 1, Q("6 mm")),
    Sketcher.Constraint("DistanceX", -1, 1, 2, 3, Q("52 mm")),
    Sketcher.Constraint("DistanceY", -1, 1, 2, 3, Q("32 mm")),
    Sketcher.Constraint("DistanceX", 5, 3, 6, 3, Q("1 mm")),
])
sketch9.setExpression("Constraints[27]", "Params.sketch9_radius")
sketch9.setExpression("Constraints[28]", "Params.sketch9_diameter")
sketch9.setExpression("Constraints[29]", "Params.sketch9_radius2")
sketch9.setExpression("Constraints[30]", "Params.sketch9_width")
sketch9.setExpression("Constraints[31]", "Params.sketch9_height")
pad4 = body.newObject("PartDesign::Pad", "Pad003")
pad4.Profile = sketch9
pad4.setExpression("Length", "Params.pad4_length")

# Sketch on XZ plane
sketch10 = body.newObject("Sketcher::SketchObject", "Sketch009")
sketch10.AttachmentSupport = (doc.getObject("XZ_Plane"), [""])
sketch10.MapMode = "FlatFace"
sketch10.AttachmentOffset = App.Placement(Vector(0, 0, 2.5), App.Rotation())
sketch10.addGeometry([
    Part.LineSegment(Vector(-55, 32, 0), Vector(-55, -32, 0)),  # 0
    Part.ArcOfCircle(Part.Circle(Vector(-52, -32, 0), Vector(0, 0, 1), 3), math.radians(180), math.radians(270)),  # 1
    Part.LineSegment(Vector(-52, -35, 0), Vector(52, -35, 0)),  # 2
    Part.ArcOfCircle(Part.Circle(Vector(52, -32, 0), Vector(0, 0, 1), 3), math.radians(-90), math.radians(0)),  # 3
    Part.LineSegment(Vector(55, -32, 0), Vector(55, 32, 0)),  # 4
    Part.ArcOfCircle(Part.Circle(Vector(52, 32, 0), Vector(0, 0, 1), 3), math.radians(0), math.radians(90)),  # 5
    Part.LineSegment(Vector(52, 35, 0), Vector(-52, 35, 0)),  # 6
    Part.ArcOfCircle(Part.Circle(Vector(-52, 32, 0), Vector(0, 0, 1), 3), math.radians(90), math.radians(180)),  # 7
], False)
sketch10.addConstraint([
    Sketcher.Constraint("Tangent", 0, 2, 1, 1),
    Sketcher.Constraint("Tangent", 1, 2, 2, 1),
    Sketcher.Constraint("Tangent", 2, 2, 3, 1),
    Sketcher.Constraint("Tangent", 3, 2, 4, 1),
    Sketcher.Constraint("Tangent", 4, 2, 5, 1),
    Sketcher.Constraint("Tangent", 5, 2, 6, 1),
    Sketcher.Constraint("Tangent", 6, 2, 7, 1),
    Sketcher.Constraint("Tangent", 7, 2, 0, 1),
    Sketcher.Constraint("Vertical", 0),
    Sketcher.Constraint("Horizontal", 2),
    Sketcher.Constraint("Vertical", 4),
    Sketcher.Constraint("Horizontal", 6),
    Sketcher.Constraint("Equal", 1, 3),
    Sketcher.Constraint("Equal", 3, 5),
    Sketcher.Constraint("Equal", 5, 7),
    Sketcher.Constraint("Symmetric", 1, 3, 5, 3, -1, 1),
    Sketcher.Constraint("Radius", 1, Q("3 mm")),
    Sketcher.Constraint("DistanceX", 2, 1, 2, 2, Q("104 mm")),
    Sketcher.Constraint("DistanceY", 0, 2, 0, 1, Q("64 mm")),
])
sketch10.setExpression("Constraints[16]", "Params.sketch10_radius")
sketch10.setExpression("Constraints[17]", "Params.sketch10_width")
sketch10.setExpression("Constraints[18]", "Params.sketch10_height")
pocket6 = body.newObject("PartDesign::Pocket", "Pocket005")
pocket6.Profile = sketch10
pocket6.setExpression("Length", "Params.pocket6_length")
pocket6.Reversed = True

# Sketch on XZ plane
sketch11 = body.newObject("Sketcher::SketchObject", "Sketch010")
sketch11.AttachmentSupport = (doc.getObject("XZ_Plane"), [""])
sketch11.MapMode = "FlatFace"
sketch11.AttachmentOffset = App.Placement(Vector(0, 0, 2.5), App.Rotation())
sketch11.addGeometry([
    Part.Circle(Vector(-45.5, 27.5, 0), Vector(0, 0, 1), 1.4),  # 0
    Part.Circle(Vector(-45.5, -27.5, 0), Vector(0, 0, 1), 1.4),  # 1
    Part.Circle(Vector(24.5, -27.5, 0), Vector(0, 0, 1), 1.4),  # 2
    Part.Circle(Vector(45.5, -27.5, 0), Vector(0, 0, 1), 1.4),  # 3
    Part.Circle(Vector(45.5, 27.5, 0), Vector(0, 0, 1), 1.4),  # 4
    Part.Circle(Vector(24.5, 27.5, 0), Vector(0, 0, 1), 1.4),  # 5
], False)
sketch11.addConstraint([
    Sketcher.Constraint("Equal", 0, 1),
    Sketcher.Constraint("Equal", 1, 2),
    Sketcher.Constraint("Equal", 2, 3),
    Sketcher.Constraint("Equal", 3, 4),
    Sketcher.Constraint("Equal", 4, 5),
    Sketcher.Constraint("Symmetric", 0, 3, 3, 3, -1, 1),
    Sketcher.Constraint("Symmetric", 1, 3, 4, 3, -1, 1),
    Sketcher.Constraint("Symmetric", 1, 3, 3, 3, -2),
    Sketcher.Constraint("Symmetric", 2, 3, 5, 3, -1),
    Sketcher.Constraint("Horizontal", 1, 3, 2, 3),
    Sketcher.Constraint("Diameter", 0, Q("2.8 mm")),
    Sketcher.Constraint("DistanceY", 1, 3, 0, 3, Q("55 mm")),
    Sketcher.Constraint("DistanceX", 1, 3, 2, 3, Q("70 mm")),
    Sketcher.Constraint("DistanceX", 2, 3, 3, 3, Q("21 mm")),
])
sketch11.setExpression("Constraints[10]", "Params.sketch11_diameter")
pad5 = body.newObject("PartDesign::Pad", "Pad004")
pad5.Profile = sketch11
pad5.setExpression("Length", "Params.pad5_length")

doc.recompute()
